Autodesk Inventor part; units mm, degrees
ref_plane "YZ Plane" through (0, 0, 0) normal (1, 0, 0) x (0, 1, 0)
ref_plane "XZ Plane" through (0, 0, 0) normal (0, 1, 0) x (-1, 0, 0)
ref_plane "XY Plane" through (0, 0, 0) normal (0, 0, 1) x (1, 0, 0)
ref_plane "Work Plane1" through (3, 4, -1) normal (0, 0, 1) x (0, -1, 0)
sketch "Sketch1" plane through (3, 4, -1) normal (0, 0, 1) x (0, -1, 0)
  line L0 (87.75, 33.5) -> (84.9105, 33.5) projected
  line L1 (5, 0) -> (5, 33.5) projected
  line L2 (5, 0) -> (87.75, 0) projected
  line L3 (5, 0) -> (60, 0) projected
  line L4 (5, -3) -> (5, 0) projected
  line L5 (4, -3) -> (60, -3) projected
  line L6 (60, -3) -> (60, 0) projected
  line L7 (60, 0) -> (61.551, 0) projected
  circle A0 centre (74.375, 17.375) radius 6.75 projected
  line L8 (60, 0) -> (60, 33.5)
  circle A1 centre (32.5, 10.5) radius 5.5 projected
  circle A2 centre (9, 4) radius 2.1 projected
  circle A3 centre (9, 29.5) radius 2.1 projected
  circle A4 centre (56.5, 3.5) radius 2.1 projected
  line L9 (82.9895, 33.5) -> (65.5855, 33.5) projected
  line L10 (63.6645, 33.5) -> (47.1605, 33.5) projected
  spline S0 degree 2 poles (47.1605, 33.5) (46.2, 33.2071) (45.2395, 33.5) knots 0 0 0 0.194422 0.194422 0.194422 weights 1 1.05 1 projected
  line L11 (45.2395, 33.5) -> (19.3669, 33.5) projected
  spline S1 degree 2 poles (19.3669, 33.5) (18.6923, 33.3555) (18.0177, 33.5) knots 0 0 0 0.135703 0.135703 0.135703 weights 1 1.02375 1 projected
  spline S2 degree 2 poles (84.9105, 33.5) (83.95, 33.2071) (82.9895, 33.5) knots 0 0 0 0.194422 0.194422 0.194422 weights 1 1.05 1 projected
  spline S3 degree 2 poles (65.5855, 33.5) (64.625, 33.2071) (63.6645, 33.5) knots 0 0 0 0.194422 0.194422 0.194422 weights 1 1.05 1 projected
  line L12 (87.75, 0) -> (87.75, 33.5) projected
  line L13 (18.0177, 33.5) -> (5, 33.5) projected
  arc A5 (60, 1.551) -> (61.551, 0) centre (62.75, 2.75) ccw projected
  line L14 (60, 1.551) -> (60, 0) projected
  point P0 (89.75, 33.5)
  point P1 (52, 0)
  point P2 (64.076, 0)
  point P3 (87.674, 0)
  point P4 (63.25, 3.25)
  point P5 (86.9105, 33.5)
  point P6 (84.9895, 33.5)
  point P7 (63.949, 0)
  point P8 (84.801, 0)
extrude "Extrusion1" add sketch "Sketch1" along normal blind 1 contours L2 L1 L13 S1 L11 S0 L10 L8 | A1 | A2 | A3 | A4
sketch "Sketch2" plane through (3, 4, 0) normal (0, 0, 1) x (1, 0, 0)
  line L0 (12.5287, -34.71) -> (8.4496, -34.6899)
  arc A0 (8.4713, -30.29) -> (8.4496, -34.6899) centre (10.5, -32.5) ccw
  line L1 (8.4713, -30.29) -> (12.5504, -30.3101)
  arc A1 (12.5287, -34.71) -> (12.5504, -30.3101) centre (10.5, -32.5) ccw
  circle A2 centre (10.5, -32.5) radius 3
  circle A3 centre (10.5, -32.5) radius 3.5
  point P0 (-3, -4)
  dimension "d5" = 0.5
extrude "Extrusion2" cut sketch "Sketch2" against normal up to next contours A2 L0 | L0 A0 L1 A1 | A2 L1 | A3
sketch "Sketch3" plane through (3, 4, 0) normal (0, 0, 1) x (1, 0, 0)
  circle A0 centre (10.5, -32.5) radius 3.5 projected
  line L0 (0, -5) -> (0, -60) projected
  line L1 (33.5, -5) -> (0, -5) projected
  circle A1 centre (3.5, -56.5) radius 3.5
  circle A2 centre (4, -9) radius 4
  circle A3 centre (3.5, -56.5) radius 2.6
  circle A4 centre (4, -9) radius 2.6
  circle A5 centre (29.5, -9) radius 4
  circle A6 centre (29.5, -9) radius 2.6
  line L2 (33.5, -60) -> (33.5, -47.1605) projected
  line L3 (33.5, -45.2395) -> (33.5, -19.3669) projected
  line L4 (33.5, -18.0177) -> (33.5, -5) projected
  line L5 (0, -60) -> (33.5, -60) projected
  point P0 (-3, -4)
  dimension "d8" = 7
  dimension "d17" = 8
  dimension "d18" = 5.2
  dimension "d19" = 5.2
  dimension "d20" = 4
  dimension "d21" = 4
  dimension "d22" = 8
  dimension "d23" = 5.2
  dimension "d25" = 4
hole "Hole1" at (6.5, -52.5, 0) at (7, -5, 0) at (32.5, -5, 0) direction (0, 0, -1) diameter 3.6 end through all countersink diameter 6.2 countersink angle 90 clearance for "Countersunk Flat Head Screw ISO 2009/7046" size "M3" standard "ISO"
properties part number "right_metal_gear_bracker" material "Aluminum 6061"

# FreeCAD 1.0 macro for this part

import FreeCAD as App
import Part
import Sketcher

V = App.Vector
Q = App.Units.Quantity

doc = App.newDocument("Part")
body = doc.addObject("PartDesign::Body", "Body")

# Sketch on XY plane
sketch1 = body.newObject("Sketcher::SketchObject", "Sketch")
sketch1.AttachmentSupport = (doc.getObject("XY_Plane"), [""])
sketch1.MapMode = "FlatFace"
sketch1.AttachmentOffset = App.Placement(V(0, 0, -1), App.Rotation())
sketch1.addGeometry(Part.LineSegment(V(3, -1, 0), V(3, -56, 0)), False)
sketch1.addGeometry(Part.LineSegment(V(3, -56, 0), V(36.5, -56, 0)), False)
sketch1.addGeometry(Part.LineSegment(V(36.5, -56, 0), V(36.5, -43.1605, 0)), False)
sketch1.addGeometry(Part.BSplineCurve([V(36.5, -43.1605, 0), V(36.2071, -42.2, 0), V(36.5, -41.2395, 0)], [3, 3], [0, 0.194422], False, 2, [1, 1.05, 1], False), False)
sketch1.addGeometry(Part.LineSegment(V(36.5, -41.2395, 0), V(36.5, -15.3669, 0)), False)
sketch1.addGeometry(Part.BSplineCurve([V(36.5, -15.3669, 0), V(36.3555, -14.6923, 0), V(36.5, -14.0177, 0)], [3, 3], [0, 0.135703], False, 2, [1, 1.02375, 1], False), False)
sketch1.addGeometry(Part.LineSegment(V(36.5, -14.0177, 0), V(36.5, -1, 0)), False)
sketch1.addGeometry(Part.LineSegment(V(36.5, -1, 0), V(3, -1, 0)), False)
sketch1.addConstraint(Sketcher.Constraint("Block", 3))
sketch1.addConstraint(Sketcher.Constraint("Block", 5))
sketch1.addConstraint(Sketcher.Constraint("Coincident", 0, 2, 1, 1))
sketch1.addConstraint(Sketcher.Constraint("Coincident", 1, 2, 2, 1))
sketch1.addConstraint(Sketcher.Constraint("Coincident", 2, 2, 3, 1))
sketch1.addConstraint(Sketcher.Constraint("Coincident", 3, 2, 4, 1))
sketch1.addConstraint(Sketcher.Constraint("Coincident", 4, 2, 5, 1))
sketch1.addConstraint(Sketcher.Constraint("Coincident", 5, 2, 6, 1))
sketch1.addConstraint(Sketcher.Constraint("Coincident", 6, 2, 7, 1))
sketch1.addConstraint(Sketcher.Constraint("Coincident", 7, 2, 0, 1))
sketch1.addConstraint(Sketcher.Constraint("Vertical", 0))
sketch1.addConstraint(Sketcher.Constraint("Horizontal", 1))
sketch1.addConstraint(Sketcher.Constraint("Vertical", 2))
sketch1.addConstraint(Sketcher.Constraint("Vertical", 6))
sketch1.addConstraint(Sketcher.Constraint("Horizontal", 7))
sketch1.addConstraint(Sketcher.Constraint("DistanceY", 0, 2, 0, 1, Q("55 mm")))
sketch1.addConstraint(Sketcher.Constraint("DistanceX", 1, 1, 1, 2, Q("33.5 mm")))
sketch1.addConstraint(Sketcher.Constraint("DistanceY", 0, 2, -1, 1, Q("56 mm")))
pad1 = body.newObject("PartDesign::Pad", "Pad")
pad1.Profile = sketch1
pad1.Length = 1

# Sketch on XY plane
sketch2 = body.newObject("Sketcher::SketchObject", "Sketch001")
sketch2.AttachmentSupport = (doc.getObject("XY_Plane"), [""])
sketch2.MapMode = "FlatFace"
sketch2.addGeometry(Part.Circle(V(13.5, -28.5, 0), V(0, 0, 1), 3.5), False)
sketch2.addConstraint(Sketcher.Constraint("Diameter", 0, Q("7 mm")))
sketch2.addConstraint(Sketcher.Constraint("DistanceX", -1, 1, 0, 3, Q("13.5 mm")))
sketch2.addConstraint(Sketcher.Constraint("DistanceY", 0, 3, -1, 1, Q("28.5 mm")))
pocket1 = body.newObject("PartDesign::Pocket", "Pocket")
pocket1.Profile = sketch2
pocket1.Type = "UpToFirst"

# Sketch on XY plane
sketch3 = body.newObject("Sketcher::SketchObject", "Sketch002")
sketch3.AttachmentSupport = (doc.getObject("XY_Plane"), [""])
sketch3.MapMode = "FlatFace"
sketch3.addGeometry(Part.Circle(V(6.5, -52.5, 0), V(0, 0, 1), 1.8), False)
sketch3.addGeometry(Part.Circle(V(7, -5, 0), V(0, 0, 1), 1.8), False)
sketch3.addGeometry(Part.Circle(V(32.5, -5, 0), V(0, 0, 1), 1.8), False)
sketch3.addConstraint(Sketcher.Constraint("Equal", 0, 1))
sketch3.addConstraint(Sketcher.Constraint("Equal", 1, 2))
sketch3.addConstraint(Sketcher.Constraint("Horizontal", 1, 3, 2, 3))
sketch3.addConstraint(Sketcher.Constraint("Diameter", 0, Q("3.6 mm")))
sketch3.addConstraint(Sketcher.Constraint("DistanceX", -1, 1, 1, 3, Q("7 mm")))
sketch3.addConstraint(Sketcher.Constraint("DistanceY", 1, 3, -1, 1, Q("5 mm")))
sketch3.addConstraint(Sketcher.Constraint("DistanceX", 0, 3, 2, 3, Q("26 mm")))
sketch3.addConstraint(Sketcher.Constraint("DistanceX", -1, 1, 0, 3, Q("6.5 mm")))
sketch3.addConstraint(Sketcher.Constraint("DistanceY", 0, 3, -1, 1, Q("52.5 mm")))
doc.recompute()
hole = body.newObject("PartDesign::Hole", "Hole")
hole.Profile = sketch3
hole.ThreadType = "None"
hole.Diameter = 3.6
hole.DepthType = "ThroughAll"
hole.HoleCutType = "Countersink"
hole.HoleCutDiameter = 6.2
hole.HoleCutCountersinkAngle = 90

doc.recompute()
